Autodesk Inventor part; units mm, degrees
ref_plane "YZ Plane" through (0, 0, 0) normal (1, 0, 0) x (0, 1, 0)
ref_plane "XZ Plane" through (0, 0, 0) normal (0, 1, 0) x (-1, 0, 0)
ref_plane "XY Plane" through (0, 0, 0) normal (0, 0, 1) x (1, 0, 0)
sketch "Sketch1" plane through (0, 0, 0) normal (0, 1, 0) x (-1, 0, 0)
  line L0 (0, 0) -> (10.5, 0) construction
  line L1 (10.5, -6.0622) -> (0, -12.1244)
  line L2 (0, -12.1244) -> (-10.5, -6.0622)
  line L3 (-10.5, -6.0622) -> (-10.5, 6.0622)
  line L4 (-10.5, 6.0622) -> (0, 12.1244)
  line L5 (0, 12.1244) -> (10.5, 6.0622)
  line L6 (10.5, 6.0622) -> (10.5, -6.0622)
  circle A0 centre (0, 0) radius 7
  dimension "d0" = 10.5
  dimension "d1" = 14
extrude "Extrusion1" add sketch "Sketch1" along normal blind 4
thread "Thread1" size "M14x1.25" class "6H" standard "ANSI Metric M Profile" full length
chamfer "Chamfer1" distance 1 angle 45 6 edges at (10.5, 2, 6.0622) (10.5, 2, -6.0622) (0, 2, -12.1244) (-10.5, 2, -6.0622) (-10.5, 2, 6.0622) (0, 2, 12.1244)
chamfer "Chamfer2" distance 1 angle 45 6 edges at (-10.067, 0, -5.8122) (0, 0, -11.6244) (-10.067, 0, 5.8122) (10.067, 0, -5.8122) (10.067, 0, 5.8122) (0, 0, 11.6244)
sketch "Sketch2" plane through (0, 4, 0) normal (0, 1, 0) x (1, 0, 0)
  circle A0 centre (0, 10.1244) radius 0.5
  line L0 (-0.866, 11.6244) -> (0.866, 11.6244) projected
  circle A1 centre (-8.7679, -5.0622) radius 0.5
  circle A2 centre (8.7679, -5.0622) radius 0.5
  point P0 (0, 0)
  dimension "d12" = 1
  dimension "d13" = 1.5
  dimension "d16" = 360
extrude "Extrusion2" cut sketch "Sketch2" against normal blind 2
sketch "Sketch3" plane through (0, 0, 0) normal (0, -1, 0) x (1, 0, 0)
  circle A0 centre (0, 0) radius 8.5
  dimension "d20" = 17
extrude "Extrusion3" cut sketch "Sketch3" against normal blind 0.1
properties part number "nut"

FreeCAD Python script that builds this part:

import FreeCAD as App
import Part
import Sketcher
Q = App.Units.Quantity


def edges_at(feature, points):
    """Names of the edges that pass closest to the given points."""
    edges = feature.Shape.Edges
    near = lambda p: min(range(len(edges)), key=lambda i: edges[i].distToShape(Part.Vertex(*p))[0])
    return sorted({f"Edge{near(p) + 1}" for p in points})


def add_polygon(sketch, points):
    """Adds a closed chain of lines whose ends are joined by coincident constraints."""
    first, n = sketch.GeometryCount, len(points)
    for a, b in zip(points, points[1:] + points[:1]):
        sketch.addGeometry(Part.LineSegment(App.Vector(*a, 0), App.Vector(*b, 0)), False)
    for i in range(n):
        sketch.addConstraint(Sketcher.Constraint("Coincident", first + i, 2, first + (i + 1) % n, 1))

doc = App.newDocument("Part")
body = doc.addObject("PartDesign::Body", "Body")

sketch1 = body.newObject("Sketcher::SketchObject", "Sketch")
sketch1.AttachmentSupport = (doc.getObject("XZ_Plane"), [""])
sketch1.MapMode = "FlatFace"
add_polygon(sketch1, [(0, -12), (-10, -6), (-10, 6), (0, 12), (10, 6), (10, -6)])
sketch1.addGeometry(Part.Circle(App.Vector(0, 0, 0), App.Vector(0, 0, 1), 7), False)
sketch1.addConstraint([
    Sketcher.Constraint("Vertical", 1),
    Sketcher.Constraint("Vertical", 4),
    Sketcher.Constraint("Coincident", 6, 3, -1, 1),
    Sketcher.Constraint("Symmetric", 0, 2, 3, 2, -1, 1),
    Sketcher.Constraint("Symmetric", 2, 2, 5, 2, -1, 1),
    Sketcher.Constraint("PointOnObject", 2, 2, -2),
    Sketcher.Constraint("Parallel", 2, 5),
    Sketcher.Constraint("Horizontal", 1, 2, 3, 2),
    Sketcher.Constraint("Diameter", 6, Q("14 mm")),
    Sketcher.Constraint("DistanceX", 0, 2, -1, 1, Q("10.5 mm")),
    Sketcher.Constraint("Angle", 0, Q("150 deg")),
    Sketcher.Constraint("DistanceY", 1, 1, 1, 2, Q("12.1244 mm")),
])
pad1 = body.newObject("PartDesign::Pad", "Pad")
pad1.Profile = sketch1
pad1.Length = 4
pad1.Reversed = True
doc.recompute()

chamfer = body.newObject("PartDesign::Chamfer", "Chamfer")
chamfer.Base = (pad1, edges_at(pad1, [
    (10.5, 2, 6.062),
    (10.5, 2, -6.062),
    (0, 2, -12.124),
    (-10.5, 2, -6.062),
    (-10.5, 2, 6.062),
    (0, 2, 12.124),
]))
chamfer.Size = 1
doc.recompute()

chamfer2 = body.newObject("PartDesign::Chamfer", "Chamfer001")
chamfer2.Base = (chamfer, edges_at(chamfer, [
    (-10.067, 0, -5.812),
    (0, 0, -11.624),
    (-10.067, 0, 5.812),
    (10.067, 0, -5.812),
    (10.067, 0, 5.812),
    (0, 0, 11.624),
]))
chamfer2.Size = 1

sketch2 = body.newObject("Sketcher::SketchObject", "Sketch001")
sketch2.AttachmentSupport = (doc.getObject("XZ_Plane"), [""])
sketch2.MapMode = "FlatFace"
sketch2.AttachmentOffset = App.Placement(App.Vector(0, 0, -4), App.Rotation())
sketch2.addGeometry([
    Part.Circle(App.Vector(0, -10.1, 0), App.Vector(0, 0, 1), 0.5),
    Part.Circle(App.Vector(-8.8, 5.1, 0), App.Vector(0, 0, 1), 0.5),
    Part.Circle(App.Vector(8.8, 5.1, 0), App.Vector(0, 0, 1), 0.5),
], False)
sketch2.addConstraint([
    Sketcher.Constraint("Equal", 0, 1),
    Sketcher.Constraint("Equal", 1, 2),
    Sketcher.Constraint("Symmetric", 1, 3, 2, 3, -2),
    Sketcher.Constraint("PointOnObject", 0, 3, -2),
    Sketcher.Constraint("Diameter", 0, Q("1 mm")),
    Sketcher.Constraint("DistanceX", 1, 3, -1, 1, Q("8.768 mm")),
    Sketcher.Constraint("DistanceY", 0, 3, -1, 1, Q("10.1244 mm")),
    Sketcher.Constraint("DistanceY", -1, 1, 1, 3, Q("5.0622 mm")),
])
pocket1 = body.newObject("PartDesign::Pocket", "Pocket")
pocket1.Profile = sketch2
pocket1.Length = 2
pocket1.Reversed = True

sketch3 = body.newObject("Sketcher::SketchObject", "Sketch002")
sketch3.AttachmentSupport = (doc.getObject("XZ_Plane"), [""])
sketch3.MapMode = "FlatFace"
sketch3.addGeometry(Part.Circle(App.Vector(0, 0, 0), App.Vector(0, 0, 1), 8), False)
sketch3.addConstraint([
    Sketcher.Constraint("Coincident", 0, 3, -1, 1),
    Sketcher.Constraint("Diameter", 0, Q("17 mm")),
])
pocket2 = body.newObject("PartDesign::Pocket", "Pocket001")
pocket2.Profile = sketch3
pocket2.Length = 0.1

doc.recompute()
